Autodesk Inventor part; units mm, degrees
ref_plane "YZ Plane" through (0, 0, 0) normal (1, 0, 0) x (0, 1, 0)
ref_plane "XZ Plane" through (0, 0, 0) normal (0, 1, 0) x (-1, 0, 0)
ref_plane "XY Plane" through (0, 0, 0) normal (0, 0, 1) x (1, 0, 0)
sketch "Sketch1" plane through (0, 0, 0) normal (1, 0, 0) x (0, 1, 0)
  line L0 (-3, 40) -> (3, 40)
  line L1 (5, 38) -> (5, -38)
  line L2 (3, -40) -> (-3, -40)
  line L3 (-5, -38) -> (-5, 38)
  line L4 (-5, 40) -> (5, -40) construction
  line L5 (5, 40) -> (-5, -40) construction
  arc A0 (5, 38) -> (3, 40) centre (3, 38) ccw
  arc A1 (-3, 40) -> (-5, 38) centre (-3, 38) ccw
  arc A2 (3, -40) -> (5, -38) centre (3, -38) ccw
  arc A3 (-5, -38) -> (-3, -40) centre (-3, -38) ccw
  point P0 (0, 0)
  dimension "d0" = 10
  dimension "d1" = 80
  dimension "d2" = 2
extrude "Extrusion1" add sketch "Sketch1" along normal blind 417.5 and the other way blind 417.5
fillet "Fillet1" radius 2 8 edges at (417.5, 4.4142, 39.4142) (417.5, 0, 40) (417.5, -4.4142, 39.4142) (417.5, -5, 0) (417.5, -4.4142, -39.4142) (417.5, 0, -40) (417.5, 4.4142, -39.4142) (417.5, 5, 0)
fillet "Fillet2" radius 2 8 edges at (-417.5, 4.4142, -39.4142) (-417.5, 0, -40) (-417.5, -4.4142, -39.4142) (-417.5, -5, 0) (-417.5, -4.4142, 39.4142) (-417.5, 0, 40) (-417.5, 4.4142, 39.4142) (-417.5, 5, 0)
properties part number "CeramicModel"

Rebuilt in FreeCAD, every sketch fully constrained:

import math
import FreeCAD as App
import Part
import Sketcher

V = App.Vector
Q = App.Units.Quantity


def edges_at(feature, points):
    """Names of the edges that pass closest to the given points."""
    edges = feature.Shape.Edges
    near = lambda p: min(range(len(edges)), key=lambda i: edges[i].distToShape(Part.Vertex(*p))[0])
    return sorted({f"Edge{near(p) + 1}" for p in points})

doc = App.newDocument("Part")
body = doc.addObject("PartDesign::Body", "Body")

# Sketch on YZ plane
sketch1 = body.newObject("Sketcher::SketchObject", "Sketch")
sketch1.AttachmentSupport = (doc.getObject("YZ_Plane"), [""])
sketch1.MapMode = "FlatFace"
sketch1.addGeometry([
    Part.LineSegment(V(3, 40, 0), V(-3, 40, 0)),  # 0
    Part.ArcOfCircle(Part.Circle(V(-3, 38, 0), V(0, 0, 1), 2), math.radians(90), math.radians(180)),  # 1
    Part.LineSegment(V(-5, 38, 0), V(-5, -38, 0)),  # 2
    Part.ArcOfCircle(Part.Circle(V(-3, -38, 0), V(0, 0, 1), 2), math.radians(180), math.radians(270)),  # 3
    Part.LineSegment(V(-3, -40, 0), V(3, -40, 0)),  # 4
    Part.ArcOfCircle(Part.Circle(V(3, -38, 0), V(0, 0, 1), 2), math.radians(-90), math.radians(0)),  # 5
    Part.LineSegment(V(5, -38, 0), V(5, 38, 0)),  # 6
    Part.ArcOfCircle(Part.Circle(V(3, 38, 0), V(0, 0, 1), 2), math.radians(0), math.radians(90)),  # 7
], False)
sketch1.addConstraint([
    Sketcher.Constraint("Tangent", 0, 2, 1, 1),
    Sketcher.Constraint("Tangent", 1, 2, 2, 1),
    Sketcher.Constraint("Tangent", 2, 2, 3, 1),
    Sketcher.Constraint("Tangent", 3, 2, 4, 1),
    Sketcher.Constraint("Tangent", 4, 2, 5, 1),
    Sketcher.Constraint("Tangent", 5, 2, 6, 1),
    Sketcher.Constraint("Tangent", 6, 2, 7, 1),
    Sketcher.Constraint("Tangent", 7, 2, 0, 1),
    Sketcher.Constraint("Horizontal", 0),
    Sketcher.Constraint("Vertical", 2),
    Sketcher.Constraint("Horizontal", 4),
    Sketcher.Constraint("Vertical", 6),
    Sketcher.Constraint("Equal", 1, 3),
    Sketcher.Constraint("Equal", 3, 5),
    Sketcher.Constraint("Equal", 5, 7),
    Sketcher.Constraint("Symmetric", 1, 3, 5, 3, -1, 1),
    Sketcher.Constraint("Radius", 1, Q("2 mm")),
    Sketcher.Constraint("DistanceX", 2, 2, 5, 2, Q("10 mm")),
    Sketcher.Constraint("DistanceY", 2, 2, 2, 1, Q("76 mm")),
])
pad1 = body.newObject("PartDesign::Pad", "Pad")
pad1.Profile = sketch1
pad1.Type = "TwoLengths"
pad1.Length = 417.5
pad1.Length2 = 417.5
doc.recompute()

fillet = body.newObject("PartDesign::Fillet", "Fillet")
fillet.Base = (pad1, edges_at(pad1, [
    (417.5, 4.414, 39.414),
    (417.5, 0, 40),
    (417.5, -4.414, 39.414),
    (417.5, -5, 0),
    (417.5, -4.414, -39.414),
    (417.5, 0, -40),
    (417.5, 4.414, -39.414),
    (417.5, 5, 0),
]))
fillet.Radius = 2
doc.recompute()

fillet2 = body.newObject("PartDesign::Fillet", "Fillet001")
fillet2.Base = (fillet, edges_at(fillet, [
    (-417.5, 4.414, -39.414),
    (-417.5, 0, -40),
    (-417.5, -4.414, -39.414),
    (-417.5, -5, 0),
    (-417.5, -4.414, 39.414),
    (-417.5, 0, 40),
    (-417.5, 4.414, 39.414),
    (-417.5, 5, 0),
]))
fillet2.Radius = 2

doc.recompute()
